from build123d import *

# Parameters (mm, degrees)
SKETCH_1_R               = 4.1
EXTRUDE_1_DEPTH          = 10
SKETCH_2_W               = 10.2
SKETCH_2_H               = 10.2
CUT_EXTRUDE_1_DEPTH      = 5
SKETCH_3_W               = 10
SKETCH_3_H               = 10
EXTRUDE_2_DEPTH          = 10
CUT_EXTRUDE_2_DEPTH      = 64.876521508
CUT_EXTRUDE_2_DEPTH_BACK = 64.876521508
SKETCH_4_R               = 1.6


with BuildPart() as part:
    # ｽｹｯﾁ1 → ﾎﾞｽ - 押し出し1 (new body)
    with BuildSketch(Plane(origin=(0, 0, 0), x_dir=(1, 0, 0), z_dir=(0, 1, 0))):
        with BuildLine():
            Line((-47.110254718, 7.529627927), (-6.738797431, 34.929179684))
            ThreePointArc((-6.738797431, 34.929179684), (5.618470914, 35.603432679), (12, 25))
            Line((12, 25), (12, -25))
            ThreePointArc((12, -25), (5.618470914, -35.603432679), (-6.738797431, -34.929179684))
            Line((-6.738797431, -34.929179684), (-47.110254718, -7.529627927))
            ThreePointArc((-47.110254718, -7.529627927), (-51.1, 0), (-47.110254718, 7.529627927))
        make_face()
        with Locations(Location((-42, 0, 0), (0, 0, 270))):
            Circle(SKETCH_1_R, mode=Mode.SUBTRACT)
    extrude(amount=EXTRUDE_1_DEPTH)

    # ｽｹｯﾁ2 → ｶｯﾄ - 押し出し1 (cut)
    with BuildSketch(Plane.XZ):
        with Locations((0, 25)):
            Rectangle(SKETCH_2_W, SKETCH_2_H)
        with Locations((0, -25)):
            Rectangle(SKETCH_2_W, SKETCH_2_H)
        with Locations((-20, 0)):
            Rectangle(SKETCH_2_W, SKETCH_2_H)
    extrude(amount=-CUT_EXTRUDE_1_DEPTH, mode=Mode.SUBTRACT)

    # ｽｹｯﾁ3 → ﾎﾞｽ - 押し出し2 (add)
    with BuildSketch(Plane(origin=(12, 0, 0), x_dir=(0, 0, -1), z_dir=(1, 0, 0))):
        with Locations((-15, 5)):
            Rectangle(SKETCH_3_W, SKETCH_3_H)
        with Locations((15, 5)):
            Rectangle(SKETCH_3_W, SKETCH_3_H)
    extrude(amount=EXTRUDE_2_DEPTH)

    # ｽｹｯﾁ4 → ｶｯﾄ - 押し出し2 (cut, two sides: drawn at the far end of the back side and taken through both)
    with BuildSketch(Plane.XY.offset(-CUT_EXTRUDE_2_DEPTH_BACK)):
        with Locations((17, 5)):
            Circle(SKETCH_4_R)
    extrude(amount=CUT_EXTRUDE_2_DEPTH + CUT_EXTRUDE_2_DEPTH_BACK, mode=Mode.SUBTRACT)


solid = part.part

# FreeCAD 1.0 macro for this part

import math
import FreeCAD as App
import Part
import Sketcher
from FreeCAD import Vector
Q = App.Units.Quantity

doc = App.newDocument("Part")
params = doc.addObject("Spreadsheet::Sheet", "Params")
for row, (alias, value) in enumerate([
    ("sketch1_radius", "12 mm"),
    ("sketch1_diameter", "8.2 mm"),
    ("sketch1_radius2", "9.1 mm"),
    ("sketch1_height", "50 mm"),
    ("pad1_length", "10 mm"),
    ("sketch2_width", "10.2 mm"),
    ("pocket1_length", "5 mm"),
    ("sketch3_width", "10 mm"),
    ("pad2_length", "10 mm"),
    ("sketch4_diameter", "3.2 mm"),
], start=1):
    params.set(f"A{row}", alias)
    params.set(f"B{row}", "=" + value)
    params.setAlias(f"B{row}", alias)

body = doc.addObject("PartDesign::Body", "Body")

sketch1 = doc.addObject("Sketcher::SketchObject", "Sketch")
body.addObject(sketch1)
sketch1.AttachmentSupport = (doc.XZ_Plane, [""])
sketch1.MapMode = "FlatFace"
sketch1.addGeometry(Part.LineSegment(Vector(-6.738797, -34.92918, 0), Vector(-47.110255, -7.529628, 0)), False)
sketch1.addGeometry(Part.ArcOfCircle(Part.Circle(Vector(-42, 0, 0), Vector(0, 0, 1), 9.1), math.radians(124.164198), math.radians(235.835802)), False)
sketch1.addGeometry(Part.LineSegment(Vector(-47.110255, 7.529628, 0), Vector(-6.738797, 34.92918, 0)), False)
sketch1.addGeometry(Part.ArcOfCircle(Part.Circle(Vector(0, 25, 0), Vector(0, 0, 1), 12), math.radians(0), math.radians(124.164198)), False)
sketch1.addGeometry(Part.LineSegment(Vector(12, 25, 0), Vector(12, -25, 0)), False)
sketch1.addGeometry(Part.ArcOfCircle(Part.Circle(Vector(0, -25, 0), Vector(0, 0, 1), 12), math.radians(-124.164198), math.radians(0)), False)
sketch1.addGeometry(Part.Circle(Vector(-42, 0, 0), Vector(0, 0, 1), 4.1), False)
sketch1.addConstraint(Sketcher.Constraint("Tangent", 0, 2, 1, 2))
sketch1.addConstraint(Sketcher.Constraint("Tangent", 1, 1, 2, 1))
sketch1.addConstraint(Sketcher.Constraint("Tangent", 2, 2, 3, 2))
sketch1.addConstraint(Sketcher.Constraint("Tangent", 3, 1, 4, 1))
sketch1.addConstraint(Sketcher.Constraint("Tangent", 4, 2, 5, 2))
sketch1.addConstraint(Sketcher.Constraint("Tangent", 5, 1, 0, 1))
sketch1.addConstraint(Sketcher.Constraint("Vertical", 4))
sketch1.addConstraint(Sketcher.Constraint("Coincident", 6, 3, 1, 3))
sketch1.addConstraint(Sketcher.Constraint("Equal", 3, 5))
sketch1.addConstraint(Sketcher.Constraint("Symmetric", 3, 3, 5, 3, -1, 1))
sketch1.addConstraint(Sketcher.Constraint("PointOnObject", 1, 3, -1))
sketch1.addConstraint(Sketcher.Constraint("Radius", 3, Q("12 mm")))
sketch1.addConstraint(Sketcher.Constraint("Diameter", 6, Q("8.2 mm")))
sketch1.addConstraint(Sketcher.Constraint("Radius", 1, Q("9.1 mm")))
sketch1.addConstraint(Sketcher.Constraint("DistanceY", 4, 2, 4, 1, Q("50 mm")))
sketch1.addConstraint(Sketcher.Constraint("DistanceX", 1, 3, -1, 1, Q("42 mm")))
sketch1.setExpression("Constraints[11]", "Params.sketch1_radius")
sketch1.setExpression("Constraints[12]", "Params.sketch1_diameter")
sketch1.setExpression("Constraints[13]", "Params.sketch1_radius2")
sketch1.setExpression("Constraints[14]", "Params.sketch1_height")
pad1 = doc.addObject("PartDesign::Pad", "Pad")
body.addObject(pad1)
pad1.Profile = sketch1
pad1.setExpression("Length", "Params.pad1_length")
pad1.Reversed = True

sketch2 = doc.addObject("Sketcher::SketchObject", "Sketch001")
body.addObject(sketch2)
sketch2.AttachmentSupport = (doc.XZ_Plane, [""])
sketch2.MapMode = "FlatFace"
sketch2.addGeometry(Part.LineSegment(Vector(-5.1, 30.1, 0), Vector(-5.1, 19.9, 0)), False)
sketch2.addGeometry(Part.LineSegment(Vector(-5.1, 19.9, 0), Vector(5.1, 19.9, 0)), False)
sketch2.addGeometry(Part.LineSegment(Vector(5.1, 19.9, 0), Vector(5.1, 30.1, 0)), False)
sketch2.addGeometry(Part.LineSegment(Vector(5.1, 30.1, 0), Vector(-5.1, 30.1, 0)), False)
sketch2.addGeometry(Part.LineSegment(Vector(-5.1, -19.9, 0), Vector(-5.1, -30.1, 0)), False)
sketch2.addGeometry(Part.LineSegment(Vector(-5.1, -30.1, 0), Vector(5.1, -30.1, 0)), False)
sketch2.addGeometry(Part.LineSegment(Vector(5.1, -30.1, 0), Vector(5.1, -19.9, 0)), False)
sketch2.addGeometry(Part.LineSegment(Vector(5.1, -19.9, 0), Vector(-5.1, -19.9, 0)), False)
sketch2.addGeometry(Part.LineSegment(Vector(-25.1, 5.1, 0), Vector(-25.1, -5.1, 0)), False)
sketch2.addGeometry(Part.LineSegment(Vector(-25.1, -5.1, 0), Vector(-14.9, -5.1, 0)), False)
sketch2.addGeometry(Part.LineSegment(Vector(-14.9, -5.1, 0), Vector(-14.9, 5.1, 0)), False)
sketch2.addGeometry(Part.LineSegment(Vector(-14.9, 5.1, 0), Vector(-25.1, 5.1, 0)), False)
sketch2.addConstraint(Sketcher.Constraint("Coincident", 0, 2, 1, 1))
sketch2.addConstraint(Sketcher.Constraint("Coincident", 1, 2, 2, 1))
sketch2.addConstraint(Sketcher.Constraint("Coincident", 2, 2, 3, 1))
sketch2.addConstraint(Sketcher.Constraint("Coincident", 3, 2, 0, 1))
sketch2.addConstraint(Sketcher.Constraint("Coincident", 4, 2, 5, 1))
sketch2.addConstraint(Sketcher.Constraint("Coincident", 5, 2, 6, 1))
sketch2.addConstraint(Sketcher.Constraint("Coincident", 6, 2, 7, 1))
sketch2.addConstraint(Sketcher.Constraint("Coincident", 7, 2, 4, 1))
sketch2.addConstraint(Sketcher.Constraint("Coincident", 8, 2, 9, 1))
sketch2.addConstraint(Sketcher.Constraint("Coincident", 9, 2, 10, 1))
sketch2.addConstraint(Sketcher.Constraint("Coincident", 10, 2, 11, 1))
sketch2.addConstraint(Sketcher.Constraint("Coincident", 11, 2, 8, 1))
sketch2.addConstraint(Sketcher.Constraint("Vertical", 0))
sketch2.addConstraint(Sketcher.Constraint("Horizontal", 1))
sketch2.addConstraint(Sketcher.Constraint("Vertical", 2))
sketch2.addConstraint(Sketcher.Constraint("Horizontal", 3))
sketch2.addConstraint(Sketcher.Constraint("Vertical", 4))
sketch2.addConstraint(Sketcher.Constraint("Horizontal", 5))
sketch2.addConstraint(Sketcher.Constraint("Vertical", 6))
sketch2.addConstraint(Sketcher.Constraint("Horizontal", 7))
sketch2.addConstraint(Sketcher.Constraint("Vertical", 8))
sketch2.addConstraint(Sketcher.Constraint("Horizontal", 9))
sketch2.addConstraint(Sketcher.Constraint("Vertical", 10))
sketch2.addConstraint(Sketcher.Constraint("Horizontal", 11))
sketch2.addConstraint(Sketcher.Constraint("Symmetric", 2, 2, 4, 2, -1, 1))
sketch2.addConstraint(Sketcher.Constraint("Symmetric", 0, 2, 6, 2, -1, 1))
sketch2.addConstraint(Sketcher.Constraint("Vertical", 3, 2, 4, 2))
sketch2.addConstraint(Sketcher.Constraint("Equal", 7, 9))
sketch2.addConstraint(Sketcher.Constraint("Equal", 11, 0))
sketch2.addConstraint(Sketcher.Constraint("Equal", 6, 8))
sketch2.addConstraint(Sketcher.Constraint("DistanceX", 1, 1, 1, 2, Q("10.2 mm")))
sketch2.addConstraint(Sketcher.Constraint("DistanceY", 4, 2, 0, 2, Q("50 mm")))
sketch2.addConstraint(Sketcher.Constraint("DistanceX", 8, 2, 7, 2, Q("20 mm")))
sketch2.addConstraint(Sketcher.Constraint("DistanceY", 8, 2, 0, 2, Q("25 mm")))
sketch2.setExpression("Constraints[30]", "Params.sketch2_width")
pocket1 = doc.addObject("PartDesign::Pocket", "Pocket")
body.addObject(pocket1)
pocket1.Profile = sketch2
pocket1.setExpression("Length", "Params.pocket1_length")

sketch3 = doc.addObject("Sketcher::SketchObject", "Sketch002")
body.addObject(sketch3)
sketch3.AttachmentSupport = (doc.YZ_Plane, [""])
sketch3.MapMode = "FlatFace"
sketch3.AttachmentOffset = App.Placement(Vector(0, 0, 12), App.Rotation())
sketch3.addGeometry(Part.LineSegment(Vector(10, 20, 0), Vector(0, 20, 0)), False)
sketch3.addGeometry(Part.LineSegment(Vector(0, 20, 0), Vector(0, 10, 0)), False)
sketch3.addGeometry(Part.LineSegment(Vector(0, 10, 0), Vector(10, 10, 0)), False)
sketch3.addGeometry(Part.LineSegment(Vector(10, 10, 0), Vector(10, 20, 0)), False)
sketch3.addGeometry(Part.LineSegment(Vector(10, -10, 0), Vector(0, -10, 0)), False)
sketch3.addGeometry(Part.LineSegment(Vector(0, -10, 0), Vector(0, -20, 0)), False)
sketch3.addGeometry(Part.LineSegment(Vector(0, -20, 0), Vector(10, -20, 0)), False)
sketch3.addGeometry(Part.LineSegment(Vector(10, -20, 0), Vector(10, -10, 0)), False)
sketch3.addConstraint(Sketcher.Constraint("Coincident", 0, 2, 1, 1))
sketch3.addConstraint(Sketcher.Constraint("Coincident", 1, 2, 2, 1))
sketch3.addConstraint(Sketcher.Constraint("Coincident", 2, 2, 3, 1))
sketch3.addConstraint(Sketcher.Constraint("Coincident", 3, 2, 0, 1))
sketch3.addConstraint(Sketcher.Constraint("Coincident", 4, 2, 5, 1))
sketch3.addConstraint(Sketcher.Constraint("Coincident", 5, 2, 6, 1))
sketch3.addConstraint(Sketcher.Constraint("Coincident", 6, 2, 7, 1))
sketch3.addConstraint(Sketcher.Constraint("Coincident", 7, 2, 4, 1))
sketch3.addConstraint(Sketcher.Constraint("Horizontal", 0))
sketch3.addConstraint(Sketcher.Constraint("Vertical", 1))
sketch3.addConstraint(Sketcher.Constraint("Horizontal", 2))
sketch3.addConstraint(Sketcher.Constraint("Vertical", 3))
sketch3.addConstraint(Sketcher.Constraint("Horizontal", 4))
sketch3.addConstraint(Sketcher.Constraint("Vertical", 5))
sketch3.addConstraint(Sketcher.Constraint("Horizontal", 6))
sketch3.addConstraint(Sketcher.Constraint("Vertical", 7))
sketch3.addConstraint(Sketcher.Constraint("Symmetric", 1, 2, 4, 2, -1, 1))
sketch3.addConstraint(Sketcher.Constraint("Symmetric", 0, 2, 5, 2, -1))
sketch3.addConstraint(Sketcher.Constraint("Vertical", 3, 2, 6, 2))
sketch3.addConstraint(Sketcher.Constraint("Equal", 6, 1))
sketch3.addConstraint(Sketcher.Constraint("DistanceX", 0, 2, 0, 1, Q("10 mm")))
sketch3.addConstraint(Sketcher.Constraint("DistanceY", -1, 1, 0, 2, Q("20 mm")))
sketch3.setExpression("Constraints[20]", "Params.sketch3_width")
pad2 = doc.addObject("PartDesign::Pad", "Pad001")
body.addObject(pad2)
pad2.Profile = sketch3
pad2.setExpression("Length", "Params.pad2_length")

sketch4 = doc.addObject("Sketcher::SketchObject", "Sketch003")
body.addObject(sketch4)
sketch4.AttachmentSupport = (doc.XY_Plane, [""])
sketch4.MapMode = "FlatFace"
sketch4.addGeometry(Part.Circle(Vector(17, 5, 0), Vector(0, 0, 1), 1.6), False)
sketch4.addConstraint(Sketcher.Constraint("Diameter", 0, Q("3.2 mm")))
sketch4.addConstraint(Sketcher.Constraint("DistanceX", -1, 1, 0, 3, Q("17 mm")))
sketch4.addConstraint(Sketcher.Constraint("DistanceY", -1, 1, 0, 3, Q("5 mm")))
sketch4.setExpression("Constraints[0]", "Params.sketch4_diameter")
pocket2 = doc.addObject("PartDesign::Pocket", "Pocket001")
body.addObject(pocket2)
pocket2.Profile = sketch4
pocket2.Type = "ThroughAll"
pocket2.Midplane = True

doc.recompute()
